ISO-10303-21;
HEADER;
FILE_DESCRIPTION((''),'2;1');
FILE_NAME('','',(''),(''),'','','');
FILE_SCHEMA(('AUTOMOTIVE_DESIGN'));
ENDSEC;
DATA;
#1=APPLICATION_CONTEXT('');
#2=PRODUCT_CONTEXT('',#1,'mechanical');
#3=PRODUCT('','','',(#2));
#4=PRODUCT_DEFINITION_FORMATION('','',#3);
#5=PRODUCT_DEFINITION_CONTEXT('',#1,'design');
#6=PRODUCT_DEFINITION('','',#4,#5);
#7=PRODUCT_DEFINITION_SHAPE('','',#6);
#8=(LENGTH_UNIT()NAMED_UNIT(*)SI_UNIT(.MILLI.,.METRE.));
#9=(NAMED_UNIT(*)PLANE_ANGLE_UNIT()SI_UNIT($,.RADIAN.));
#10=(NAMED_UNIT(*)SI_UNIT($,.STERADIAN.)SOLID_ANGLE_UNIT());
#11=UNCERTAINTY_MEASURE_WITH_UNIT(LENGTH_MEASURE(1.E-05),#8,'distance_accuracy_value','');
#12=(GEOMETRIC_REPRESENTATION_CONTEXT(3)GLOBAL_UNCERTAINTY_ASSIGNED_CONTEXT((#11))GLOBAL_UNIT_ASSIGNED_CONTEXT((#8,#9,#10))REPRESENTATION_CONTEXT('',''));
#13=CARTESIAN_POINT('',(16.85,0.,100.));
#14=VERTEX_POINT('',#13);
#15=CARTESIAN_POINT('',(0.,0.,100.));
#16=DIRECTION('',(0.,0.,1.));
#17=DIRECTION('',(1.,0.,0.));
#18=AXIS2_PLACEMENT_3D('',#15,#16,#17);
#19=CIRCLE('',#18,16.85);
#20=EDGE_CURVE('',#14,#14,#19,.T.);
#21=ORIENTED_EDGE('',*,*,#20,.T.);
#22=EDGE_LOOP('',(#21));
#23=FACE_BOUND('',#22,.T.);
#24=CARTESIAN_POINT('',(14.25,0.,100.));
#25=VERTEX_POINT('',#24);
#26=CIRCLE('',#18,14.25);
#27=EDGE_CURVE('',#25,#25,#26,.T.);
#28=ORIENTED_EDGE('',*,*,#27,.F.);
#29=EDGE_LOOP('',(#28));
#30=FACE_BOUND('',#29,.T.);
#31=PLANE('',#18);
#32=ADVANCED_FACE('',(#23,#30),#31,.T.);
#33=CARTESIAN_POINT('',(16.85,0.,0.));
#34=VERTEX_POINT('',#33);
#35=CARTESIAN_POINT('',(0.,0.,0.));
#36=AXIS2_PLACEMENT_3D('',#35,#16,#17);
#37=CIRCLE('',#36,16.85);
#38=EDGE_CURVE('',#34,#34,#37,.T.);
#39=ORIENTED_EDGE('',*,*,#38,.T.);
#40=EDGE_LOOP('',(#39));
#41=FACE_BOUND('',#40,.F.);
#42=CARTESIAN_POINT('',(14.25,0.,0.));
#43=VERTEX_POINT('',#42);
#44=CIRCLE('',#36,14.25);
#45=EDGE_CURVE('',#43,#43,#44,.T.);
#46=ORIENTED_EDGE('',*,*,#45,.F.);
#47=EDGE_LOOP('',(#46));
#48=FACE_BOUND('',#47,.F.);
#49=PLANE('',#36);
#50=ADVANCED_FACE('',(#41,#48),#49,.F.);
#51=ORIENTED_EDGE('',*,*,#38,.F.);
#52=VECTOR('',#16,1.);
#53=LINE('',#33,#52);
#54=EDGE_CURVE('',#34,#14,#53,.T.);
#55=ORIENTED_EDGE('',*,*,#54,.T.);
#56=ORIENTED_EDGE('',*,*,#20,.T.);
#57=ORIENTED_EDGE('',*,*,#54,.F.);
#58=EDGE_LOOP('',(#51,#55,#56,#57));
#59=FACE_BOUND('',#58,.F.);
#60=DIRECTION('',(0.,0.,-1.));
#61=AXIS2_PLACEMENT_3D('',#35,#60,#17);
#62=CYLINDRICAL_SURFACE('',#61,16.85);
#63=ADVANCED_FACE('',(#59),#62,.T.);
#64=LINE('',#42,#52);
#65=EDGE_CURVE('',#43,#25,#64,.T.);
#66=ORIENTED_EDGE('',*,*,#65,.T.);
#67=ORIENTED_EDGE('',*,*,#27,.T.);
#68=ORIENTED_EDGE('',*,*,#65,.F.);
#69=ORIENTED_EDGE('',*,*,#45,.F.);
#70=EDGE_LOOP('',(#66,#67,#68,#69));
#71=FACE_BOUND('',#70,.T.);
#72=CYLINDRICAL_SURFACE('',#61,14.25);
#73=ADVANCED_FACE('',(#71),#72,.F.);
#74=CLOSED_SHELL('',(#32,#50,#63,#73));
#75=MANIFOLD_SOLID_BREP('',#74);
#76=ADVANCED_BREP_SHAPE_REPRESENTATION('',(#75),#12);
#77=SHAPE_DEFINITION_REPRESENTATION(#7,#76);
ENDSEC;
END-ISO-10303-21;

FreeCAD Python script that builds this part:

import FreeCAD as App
import Part
import Sketcher
Q = App.Units.Quantity

doc = App.newDocument("Part")
body = doc.addObject("PartDesign::Body", "Body")

sketch1 = body.newObject("Sketcher::SketchObject", "Sketch")
sketch1.AttachmentSupport = (doc.getObject("XY_Plane"), [""])
sketch1.MapMode = "FlatFace"
sketch1.addGeometry(Part.Circle(App.Vector(0, 0, 0), App.Vector(0, 0, 1), 17), False)
sketch1.addGeometry(Part.Circle(App.Vector(0, 0, 0), App.Vector(0, 0, 1), 14), False)
sketch1.addConstraint(Sketcher.Constraint("Coincident", 0, 3, -1, 1))
sketch1.addConstraint(Sketcher.Constraint("Coincident", 1, 3, -1, 1))
sketch1.addConstraint(Sketcher.Constraint("Diameter", 0, Q("33.7 mm")))
sketch1.addConstraint(Sketcher.Constraint("Diameter", 1, Q("28.5 mm")))
pad1 = body.newObject("PartDesign::Pad", "Pad")
pad1.Profile = sketch1
pad1.Length = 100

doc.recompute()
